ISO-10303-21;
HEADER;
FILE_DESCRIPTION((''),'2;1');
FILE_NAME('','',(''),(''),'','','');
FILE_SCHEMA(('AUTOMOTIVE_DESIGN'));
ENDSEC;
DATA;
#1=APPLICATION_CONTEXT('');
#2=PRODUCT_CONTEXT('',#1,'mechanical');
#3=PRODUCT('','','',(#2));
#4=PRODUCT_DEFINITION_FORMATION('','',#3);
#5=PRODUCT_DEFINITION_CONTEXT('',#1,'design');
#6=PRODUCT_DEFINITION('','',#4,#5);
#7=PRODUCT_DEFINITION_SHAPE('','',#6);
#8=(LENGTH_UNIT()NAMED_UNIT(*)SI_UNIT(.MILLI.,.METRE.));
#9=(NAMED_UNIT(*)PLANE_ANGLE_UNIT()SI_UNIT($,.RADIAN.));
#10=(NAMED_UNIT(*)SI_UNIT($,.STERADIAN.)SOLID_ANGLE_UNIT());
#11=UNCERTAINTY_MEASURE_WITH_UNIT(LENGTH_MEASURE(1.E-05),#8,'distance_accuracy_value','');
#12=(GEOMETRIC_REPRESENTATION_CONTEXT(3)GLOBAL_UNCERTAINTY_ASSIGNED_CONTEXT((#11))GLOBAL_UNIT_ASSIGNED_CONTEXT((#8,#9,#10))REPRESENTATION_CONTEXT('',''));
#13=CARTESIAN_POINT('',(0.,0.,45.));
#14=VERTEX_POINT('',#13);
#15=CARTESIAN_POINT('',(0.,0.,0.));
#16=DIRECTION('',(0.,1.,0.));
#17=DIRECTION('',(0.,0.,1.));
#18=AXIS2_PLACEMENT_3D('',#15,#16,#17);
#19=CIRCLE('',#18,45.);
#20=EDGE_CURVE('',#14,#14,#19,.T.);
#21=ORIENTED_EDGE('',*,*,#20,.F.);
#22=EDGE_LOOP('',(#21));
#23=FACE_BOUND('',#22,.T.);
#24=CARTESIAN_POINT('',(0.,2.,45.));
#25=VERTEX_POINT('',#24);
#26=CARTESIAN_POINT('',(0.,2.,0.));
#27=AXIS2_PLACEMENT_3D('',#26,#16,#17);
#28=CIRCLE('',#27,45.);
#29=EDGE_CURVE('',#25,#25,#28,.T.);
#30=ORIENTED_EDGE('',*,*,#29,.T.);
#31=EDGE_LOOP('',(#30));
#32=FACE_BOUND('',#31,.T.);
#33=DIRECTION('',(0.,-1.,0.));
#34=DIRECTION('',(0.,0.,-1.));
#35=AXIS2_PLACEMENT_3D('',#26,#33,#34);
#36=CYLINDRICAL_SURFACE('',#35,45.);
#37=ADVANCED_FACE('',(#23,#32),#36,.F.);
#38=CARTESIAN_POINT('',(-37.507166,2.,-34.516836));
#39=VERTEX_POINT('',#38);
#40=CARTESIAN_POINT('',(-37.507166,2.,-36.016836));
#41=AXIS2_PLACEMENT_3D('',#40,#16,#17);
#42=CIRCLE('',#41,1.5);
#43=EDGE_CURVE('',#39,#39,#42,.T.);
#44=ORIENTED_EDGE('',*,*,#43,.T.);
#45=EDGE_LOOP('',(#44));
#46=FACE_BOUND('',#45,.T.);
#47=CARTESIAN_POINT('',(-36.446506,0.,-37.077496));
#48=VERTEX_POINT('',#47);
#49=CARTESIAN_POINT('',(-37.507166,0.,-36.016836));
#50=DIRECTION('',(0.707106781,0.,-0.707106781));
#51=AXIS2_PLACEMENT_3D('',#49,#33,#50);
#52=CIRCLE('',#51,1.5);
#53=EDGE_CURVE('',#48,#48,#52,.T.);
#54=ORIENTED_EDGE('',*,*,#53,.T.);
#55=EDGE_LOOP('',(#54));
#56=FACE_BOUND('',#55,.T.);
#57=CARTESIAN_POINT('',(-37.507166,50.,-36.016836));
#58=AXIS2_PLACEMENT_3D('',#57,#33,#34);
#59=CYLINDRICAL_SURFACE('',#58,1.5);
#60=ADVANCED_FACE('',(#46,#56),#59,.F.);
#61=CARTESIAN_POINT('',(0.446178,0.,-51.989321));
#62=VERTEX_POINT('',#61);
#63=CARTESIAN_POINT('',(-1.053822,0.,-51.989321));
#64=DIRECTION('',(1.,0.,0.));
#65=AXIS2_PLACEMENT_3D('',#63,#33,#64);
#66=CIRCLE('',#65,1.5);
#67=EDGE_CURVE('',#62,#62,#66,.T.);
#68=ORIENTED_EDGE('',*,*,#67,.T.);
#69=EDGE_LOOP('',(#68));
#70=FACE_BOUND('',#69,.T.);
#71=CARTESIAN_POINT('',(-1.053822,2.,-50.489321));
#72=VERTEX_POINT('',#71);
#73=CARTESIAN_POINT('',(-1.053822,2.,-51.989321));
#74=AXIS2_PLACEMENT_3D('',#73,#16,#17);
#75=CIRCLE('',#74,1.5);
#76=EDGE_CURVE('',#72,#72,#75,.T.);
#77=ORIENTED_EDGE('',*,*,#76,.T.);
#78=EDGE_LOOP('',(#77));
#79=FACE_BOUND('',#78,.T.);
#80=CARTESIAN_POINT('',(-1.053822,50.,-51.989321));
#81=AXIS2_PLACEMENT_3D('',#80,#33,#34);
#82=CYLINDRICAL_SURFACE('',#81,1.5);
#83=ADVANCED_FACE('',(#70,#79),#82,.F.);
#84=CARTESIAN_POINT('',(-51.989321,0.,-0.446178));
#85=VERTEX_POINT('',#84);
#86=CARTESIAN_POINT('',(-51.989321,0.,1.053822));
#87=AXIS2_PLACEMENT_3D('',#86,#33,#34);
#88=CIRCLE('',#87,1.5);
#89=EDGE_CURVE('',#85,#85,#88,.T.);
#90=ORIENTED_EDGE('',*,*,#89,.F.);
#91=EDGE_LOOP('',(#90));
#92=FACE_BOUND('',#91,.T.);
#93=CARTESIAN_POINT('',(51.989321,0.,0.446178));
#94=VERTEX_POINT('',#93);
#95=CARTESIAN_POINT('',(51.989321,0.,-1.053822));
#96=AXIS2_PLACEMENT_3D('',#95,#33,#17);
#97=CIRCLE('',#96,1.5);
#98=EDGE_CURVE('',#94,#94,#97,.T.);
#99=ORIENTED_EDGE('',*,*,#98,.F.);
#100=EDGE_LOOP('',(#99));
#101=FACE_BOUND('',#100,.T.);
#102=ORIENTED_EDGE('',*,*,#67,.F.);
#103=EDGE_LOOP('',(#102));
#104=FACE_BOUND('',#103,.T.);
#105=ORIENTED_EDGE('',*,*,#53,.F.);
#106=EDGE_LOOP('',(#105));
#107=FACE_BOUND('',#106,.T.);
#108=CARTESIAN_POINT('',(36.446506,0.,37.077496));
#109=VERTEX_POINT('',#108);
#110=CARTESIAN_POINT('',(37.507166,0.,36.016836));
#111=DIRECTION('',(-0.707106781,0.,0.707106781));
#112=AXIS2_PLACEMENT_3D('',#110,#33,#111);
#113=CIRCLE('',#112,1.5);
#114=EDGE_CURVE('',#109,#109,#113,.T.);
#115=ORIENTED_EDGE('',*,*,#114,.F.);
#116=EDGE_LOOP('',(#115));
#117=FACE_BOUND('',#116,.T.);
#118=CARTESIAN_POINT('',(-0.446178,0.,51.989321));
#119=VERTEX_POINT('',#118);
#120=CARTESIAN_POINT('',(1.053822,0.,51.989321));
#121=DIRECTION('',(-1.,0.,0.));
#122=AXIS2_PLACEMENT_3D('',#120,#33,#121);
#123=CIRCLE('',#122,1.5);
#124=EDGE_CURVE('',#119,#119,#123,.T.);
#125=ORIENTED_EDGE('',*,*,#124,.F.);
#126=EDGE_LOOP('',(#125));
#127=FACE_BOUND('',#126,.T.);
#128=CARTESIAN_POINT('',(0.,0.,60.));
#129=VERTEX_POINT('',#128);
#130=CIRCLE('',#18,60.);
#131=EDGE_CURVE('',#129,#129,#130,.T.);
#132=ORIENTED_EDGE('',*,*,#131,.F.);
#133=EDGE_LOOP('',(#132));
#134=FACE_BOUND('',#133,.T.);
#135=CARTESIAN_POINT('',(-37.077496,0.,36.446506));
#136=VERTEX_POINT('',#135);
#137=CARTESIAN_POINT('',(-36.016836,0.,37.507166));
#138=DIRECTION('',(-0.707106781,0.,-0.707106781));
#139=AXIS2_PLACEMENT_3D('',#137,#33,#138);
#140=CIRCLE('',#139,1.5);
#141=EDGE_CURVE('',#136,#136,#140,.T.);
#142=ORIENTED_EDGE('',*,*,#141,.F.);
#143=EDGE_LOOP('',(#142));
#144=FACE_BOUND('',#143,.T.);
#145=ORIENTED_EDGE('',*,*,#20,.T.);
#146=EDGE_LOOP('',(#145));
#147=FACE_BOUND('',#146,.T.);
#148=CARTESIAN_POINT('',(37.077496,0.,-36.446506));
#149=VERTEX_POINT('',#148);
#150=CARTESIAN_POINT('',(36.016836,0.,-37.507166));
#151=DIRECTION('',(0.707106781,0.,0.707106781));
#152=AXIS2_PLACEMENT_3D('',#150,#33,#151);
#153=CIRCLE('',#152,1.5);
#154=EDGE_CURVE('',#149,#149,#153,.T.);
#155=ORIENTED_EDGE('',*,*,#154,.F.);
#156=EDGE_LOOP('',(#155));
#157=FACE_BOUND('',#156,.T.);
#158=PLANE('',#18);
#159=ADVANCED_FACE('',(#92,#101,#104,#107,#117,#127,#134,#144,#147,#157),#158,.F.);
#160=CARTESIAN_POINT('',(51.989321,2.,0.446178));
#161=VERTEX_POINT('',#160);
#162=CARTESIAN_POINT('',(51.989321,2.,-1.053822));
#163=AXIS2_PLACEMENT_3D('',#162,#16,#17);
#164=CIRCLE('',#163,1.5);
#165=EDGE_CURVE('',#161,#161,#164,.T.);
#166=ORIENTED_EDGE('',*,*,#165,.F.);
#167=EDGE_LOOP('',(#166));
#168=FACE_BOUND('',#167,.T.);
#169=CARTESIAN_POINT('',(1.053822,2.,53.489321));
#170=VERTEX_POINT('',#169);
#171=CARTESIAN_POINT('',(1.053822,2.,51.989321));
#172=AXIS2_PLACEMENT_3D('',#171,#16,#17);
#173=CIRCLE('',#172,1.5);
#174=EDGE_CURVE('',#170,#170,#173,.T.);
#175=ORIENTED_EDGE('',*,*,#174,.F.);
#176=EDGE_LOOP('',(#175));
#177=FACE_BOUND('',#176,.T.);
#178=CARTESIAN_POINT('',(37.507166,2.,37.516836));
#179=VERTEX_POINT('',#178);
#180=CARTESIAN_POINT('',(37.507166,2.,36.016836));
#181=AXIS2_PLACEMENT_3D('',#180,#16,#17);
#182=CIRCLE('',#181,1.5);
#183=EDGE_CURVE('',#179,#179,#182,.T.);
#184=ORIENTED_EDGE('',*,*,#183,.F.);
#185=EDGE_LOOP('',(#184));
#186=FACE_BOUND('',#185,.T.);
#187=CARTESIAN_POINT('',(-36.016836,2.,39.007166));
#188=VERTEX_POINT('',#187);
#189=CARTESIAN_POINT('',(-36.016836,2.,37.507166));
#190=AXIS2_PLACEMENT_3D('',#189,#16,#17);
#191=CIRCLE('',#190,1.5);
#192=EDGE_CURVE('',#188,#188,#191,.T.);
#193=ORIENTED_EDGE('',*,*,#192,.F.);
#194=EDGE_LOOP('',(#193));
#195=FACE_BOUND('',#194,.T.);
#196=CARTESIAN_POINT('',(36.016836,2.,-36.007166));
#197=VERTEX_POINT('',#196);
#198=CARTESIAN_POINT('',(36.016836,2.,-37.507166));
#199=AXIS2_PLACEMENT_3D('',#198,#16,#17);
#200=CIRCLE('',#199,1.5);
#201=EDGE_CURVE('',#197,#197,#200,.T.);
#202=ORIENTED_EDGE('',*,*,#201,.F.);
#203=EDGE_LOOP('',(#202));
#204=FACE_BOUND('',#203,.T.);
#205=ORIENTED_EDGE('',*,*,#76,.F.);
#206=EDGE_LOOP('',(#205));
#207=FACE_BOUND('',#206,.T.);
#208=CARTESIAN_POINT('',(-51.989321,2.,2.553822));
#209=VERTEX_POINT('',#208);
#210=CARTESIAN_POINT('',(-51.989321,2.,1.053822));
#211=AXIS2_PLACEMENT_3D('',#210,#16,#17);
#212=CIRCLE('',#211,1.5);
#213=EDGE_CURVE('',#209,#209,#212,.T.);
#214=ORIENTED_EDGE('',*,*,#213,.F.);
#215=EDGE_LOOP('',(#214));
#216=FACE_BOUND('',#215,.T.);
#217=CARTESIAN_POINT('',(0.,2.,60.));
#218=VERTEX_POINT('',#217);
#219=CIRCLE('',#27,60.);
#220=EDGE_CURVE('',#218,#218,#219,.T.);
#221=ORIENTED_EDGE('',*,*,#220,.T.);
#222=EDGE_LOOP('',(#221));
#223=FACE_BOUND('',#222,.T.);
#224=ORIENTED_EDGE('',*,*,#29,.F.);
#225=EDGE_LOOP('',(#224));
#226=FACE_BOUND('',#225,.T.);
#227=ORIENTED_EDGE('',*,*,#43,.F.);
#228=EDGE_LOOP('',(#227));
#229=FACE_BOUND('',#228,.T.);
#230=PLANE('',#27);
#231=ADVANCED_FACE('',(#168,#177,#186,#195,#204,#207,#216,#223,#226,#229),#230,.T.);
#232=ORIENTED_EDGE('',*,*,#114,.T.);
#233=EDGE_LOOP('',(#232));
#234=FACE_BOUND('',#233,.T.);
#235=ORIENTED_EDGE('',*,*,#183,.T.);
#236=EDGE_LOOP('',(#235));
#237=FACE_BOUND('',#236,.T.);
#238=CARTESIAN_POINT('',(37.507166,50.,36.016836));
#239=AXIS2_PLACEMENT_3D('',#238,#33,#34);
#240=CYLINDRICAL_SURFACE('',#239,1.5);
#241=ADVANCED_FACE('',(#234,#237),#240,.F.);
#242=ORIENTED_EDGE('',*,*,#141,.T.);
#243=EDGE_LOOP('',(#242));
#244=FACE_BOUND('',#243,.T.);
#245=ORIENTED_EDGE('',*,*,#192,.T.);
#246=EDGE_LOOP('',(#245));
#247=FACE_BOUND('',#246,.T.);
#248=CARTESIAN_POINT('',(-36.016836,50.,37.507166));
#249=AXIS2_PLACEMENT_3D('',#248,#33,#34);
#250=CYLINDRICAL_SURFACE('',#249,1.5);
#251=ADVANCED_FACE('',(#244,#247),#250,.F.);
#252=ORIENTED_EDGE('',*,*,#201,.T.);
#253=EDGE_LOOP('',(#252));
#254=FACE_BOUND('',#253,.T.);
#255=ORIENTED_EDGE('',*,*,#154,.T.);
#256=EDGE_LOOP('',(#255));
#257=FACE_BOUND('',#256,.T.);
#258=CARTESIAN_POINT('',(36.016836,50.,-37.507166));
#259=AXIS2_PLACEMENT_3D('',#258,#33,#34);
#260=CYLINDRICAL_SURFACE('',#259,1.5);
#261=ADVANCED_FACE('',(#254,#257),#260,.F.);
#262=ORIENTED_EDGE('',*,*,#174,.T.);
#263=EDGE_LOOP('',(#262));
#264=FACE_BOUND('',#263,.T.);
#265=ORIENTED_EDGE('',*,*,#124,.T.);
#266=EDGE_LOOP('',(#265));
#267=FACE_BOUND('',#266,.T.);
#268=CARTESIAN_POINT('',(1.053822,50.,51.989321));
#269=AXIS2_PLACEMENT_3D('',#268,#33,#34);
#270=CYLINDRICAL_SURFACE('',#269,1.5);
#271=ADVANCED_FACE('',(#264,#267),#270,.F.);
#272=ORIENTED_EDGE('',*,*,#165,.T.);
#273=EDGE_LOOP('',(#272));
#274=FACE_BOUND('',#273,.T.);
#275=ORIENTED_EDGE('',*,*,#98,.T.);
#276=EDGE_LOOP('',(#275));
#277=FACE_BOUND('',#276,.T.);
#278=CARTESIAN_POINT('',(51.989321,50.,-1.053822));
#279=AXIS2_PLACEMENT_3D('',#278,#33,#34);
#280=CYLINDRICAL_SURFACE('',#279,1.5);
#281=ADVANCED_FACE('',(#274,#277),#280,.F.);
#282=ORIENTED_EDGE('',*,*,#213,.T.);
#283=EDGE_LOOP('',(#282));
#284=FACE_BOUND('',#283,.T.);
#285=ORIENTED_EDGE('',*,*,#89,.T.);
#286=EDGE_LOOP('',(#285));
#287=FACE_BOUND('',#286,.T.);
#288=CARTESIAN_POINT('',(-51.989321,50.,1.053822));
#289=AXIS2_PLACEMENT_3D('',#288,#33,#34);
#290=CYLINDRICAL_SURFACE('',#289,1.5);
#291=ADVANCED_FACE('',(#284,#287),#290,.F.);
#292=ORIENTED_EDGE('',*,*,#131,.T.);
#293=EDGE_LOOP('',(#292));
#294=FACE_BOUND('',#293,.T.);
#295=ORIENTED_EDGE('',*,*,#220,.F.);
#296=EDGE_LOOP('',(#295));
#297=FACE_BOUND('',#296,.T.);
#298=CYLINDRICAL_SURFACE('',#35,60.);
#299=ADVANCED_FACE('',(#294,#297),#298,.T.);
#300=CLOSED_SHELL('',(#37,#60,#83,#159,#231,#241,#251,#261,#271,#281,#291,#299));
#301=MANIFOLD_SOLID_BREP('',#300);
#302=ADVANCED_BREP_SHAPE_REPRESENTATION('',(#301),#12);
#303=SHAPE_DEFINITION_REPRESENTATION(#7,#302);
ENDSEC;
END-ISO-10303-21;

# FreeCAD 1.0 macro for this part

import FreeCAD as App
import Part
import Sketcher
Q = App.Units.Quantity

doc = App.newDocument("Part")
body = doc.addObject("PartDesign::Body", "Body")

# Sketch on XZ plane
sketch1 = doc.addObject("Sketcher::SketchObject", "Sketch")
body.addObject(sketch1)
sketch1.AttachmentSupport = (doc.XZ_Plane, [""])
sketch1.MapMode = "FlatFace"
sketch1.addGeometry([
    Part.Circle(App.Vector(0, 0, 0), App.Vector(0, 0, 1), 60),
    Part.Circle(App.Vector(0, 0, 0), App.Vector(0, 0, 1), 45),
], False)
sketch1.addConstraint([
    Sketcher.Constraint("Coincident", 0, 3, -1, 1),
    Sketcher.Constraint("Coincident", 1, 3, -1, 1),
    Sketcher.Constraint("Diameter", 0, Q("120 mm")),
    Sketcher.Constraint("Diameter", 1, Q("90 mm")),
])
pad1 = doc.addObject("PartDesign::Pad", "Pad")
body.addObject(pad1)
pad1.Profile = sketch1
pad1.Length = 2
pad1.Reversed = True

# Sketch on XZ plane
sketch2 = doc.addObject("Sketcher::SketchObject", "Sketch001")
body.addObject(sketch2)
sketch2.AttachmentSupport = (doc.XZ_Plane, [""])
sketch2.MapMode = "FlatFace"
sketch2.addGeometry(Part.Circle(App.Vector(-52, 1.1, 0), App.Vector(0, 0, 1), 1.5), False)
sketch2.addConstraint([
    Sketcher.Constraint("Diameter", 0, Q("3 mm")),
    Sketcher.Constraint("DistanceX", 0, 3, -1, 1, Q("51.989321 mm")),
    Sketcher.Constraint("DistanceY", -1, 1, 0, 3, Q("1.053822 mm")),
])
pocket1 = doc.addObject("PartDesign::Pocket", "Pocket")
body.addObject(pocket1)
pocket1.Profile = sketch2
pocket1.Length = 50
doc.recompute()

polarpattern = doc.addObject("PartDesign::PolarPattern", "PolarPattern")
body.addObject(polarpattern)
polarpattern.Originals = [pocket1]
polarpattern.Axis = (doc.Y_Axis, [""])
polarpattern.Angle = 360
polarpattern.Occurrences = 8
body.Tip = polarpattern

doc.recompute()
